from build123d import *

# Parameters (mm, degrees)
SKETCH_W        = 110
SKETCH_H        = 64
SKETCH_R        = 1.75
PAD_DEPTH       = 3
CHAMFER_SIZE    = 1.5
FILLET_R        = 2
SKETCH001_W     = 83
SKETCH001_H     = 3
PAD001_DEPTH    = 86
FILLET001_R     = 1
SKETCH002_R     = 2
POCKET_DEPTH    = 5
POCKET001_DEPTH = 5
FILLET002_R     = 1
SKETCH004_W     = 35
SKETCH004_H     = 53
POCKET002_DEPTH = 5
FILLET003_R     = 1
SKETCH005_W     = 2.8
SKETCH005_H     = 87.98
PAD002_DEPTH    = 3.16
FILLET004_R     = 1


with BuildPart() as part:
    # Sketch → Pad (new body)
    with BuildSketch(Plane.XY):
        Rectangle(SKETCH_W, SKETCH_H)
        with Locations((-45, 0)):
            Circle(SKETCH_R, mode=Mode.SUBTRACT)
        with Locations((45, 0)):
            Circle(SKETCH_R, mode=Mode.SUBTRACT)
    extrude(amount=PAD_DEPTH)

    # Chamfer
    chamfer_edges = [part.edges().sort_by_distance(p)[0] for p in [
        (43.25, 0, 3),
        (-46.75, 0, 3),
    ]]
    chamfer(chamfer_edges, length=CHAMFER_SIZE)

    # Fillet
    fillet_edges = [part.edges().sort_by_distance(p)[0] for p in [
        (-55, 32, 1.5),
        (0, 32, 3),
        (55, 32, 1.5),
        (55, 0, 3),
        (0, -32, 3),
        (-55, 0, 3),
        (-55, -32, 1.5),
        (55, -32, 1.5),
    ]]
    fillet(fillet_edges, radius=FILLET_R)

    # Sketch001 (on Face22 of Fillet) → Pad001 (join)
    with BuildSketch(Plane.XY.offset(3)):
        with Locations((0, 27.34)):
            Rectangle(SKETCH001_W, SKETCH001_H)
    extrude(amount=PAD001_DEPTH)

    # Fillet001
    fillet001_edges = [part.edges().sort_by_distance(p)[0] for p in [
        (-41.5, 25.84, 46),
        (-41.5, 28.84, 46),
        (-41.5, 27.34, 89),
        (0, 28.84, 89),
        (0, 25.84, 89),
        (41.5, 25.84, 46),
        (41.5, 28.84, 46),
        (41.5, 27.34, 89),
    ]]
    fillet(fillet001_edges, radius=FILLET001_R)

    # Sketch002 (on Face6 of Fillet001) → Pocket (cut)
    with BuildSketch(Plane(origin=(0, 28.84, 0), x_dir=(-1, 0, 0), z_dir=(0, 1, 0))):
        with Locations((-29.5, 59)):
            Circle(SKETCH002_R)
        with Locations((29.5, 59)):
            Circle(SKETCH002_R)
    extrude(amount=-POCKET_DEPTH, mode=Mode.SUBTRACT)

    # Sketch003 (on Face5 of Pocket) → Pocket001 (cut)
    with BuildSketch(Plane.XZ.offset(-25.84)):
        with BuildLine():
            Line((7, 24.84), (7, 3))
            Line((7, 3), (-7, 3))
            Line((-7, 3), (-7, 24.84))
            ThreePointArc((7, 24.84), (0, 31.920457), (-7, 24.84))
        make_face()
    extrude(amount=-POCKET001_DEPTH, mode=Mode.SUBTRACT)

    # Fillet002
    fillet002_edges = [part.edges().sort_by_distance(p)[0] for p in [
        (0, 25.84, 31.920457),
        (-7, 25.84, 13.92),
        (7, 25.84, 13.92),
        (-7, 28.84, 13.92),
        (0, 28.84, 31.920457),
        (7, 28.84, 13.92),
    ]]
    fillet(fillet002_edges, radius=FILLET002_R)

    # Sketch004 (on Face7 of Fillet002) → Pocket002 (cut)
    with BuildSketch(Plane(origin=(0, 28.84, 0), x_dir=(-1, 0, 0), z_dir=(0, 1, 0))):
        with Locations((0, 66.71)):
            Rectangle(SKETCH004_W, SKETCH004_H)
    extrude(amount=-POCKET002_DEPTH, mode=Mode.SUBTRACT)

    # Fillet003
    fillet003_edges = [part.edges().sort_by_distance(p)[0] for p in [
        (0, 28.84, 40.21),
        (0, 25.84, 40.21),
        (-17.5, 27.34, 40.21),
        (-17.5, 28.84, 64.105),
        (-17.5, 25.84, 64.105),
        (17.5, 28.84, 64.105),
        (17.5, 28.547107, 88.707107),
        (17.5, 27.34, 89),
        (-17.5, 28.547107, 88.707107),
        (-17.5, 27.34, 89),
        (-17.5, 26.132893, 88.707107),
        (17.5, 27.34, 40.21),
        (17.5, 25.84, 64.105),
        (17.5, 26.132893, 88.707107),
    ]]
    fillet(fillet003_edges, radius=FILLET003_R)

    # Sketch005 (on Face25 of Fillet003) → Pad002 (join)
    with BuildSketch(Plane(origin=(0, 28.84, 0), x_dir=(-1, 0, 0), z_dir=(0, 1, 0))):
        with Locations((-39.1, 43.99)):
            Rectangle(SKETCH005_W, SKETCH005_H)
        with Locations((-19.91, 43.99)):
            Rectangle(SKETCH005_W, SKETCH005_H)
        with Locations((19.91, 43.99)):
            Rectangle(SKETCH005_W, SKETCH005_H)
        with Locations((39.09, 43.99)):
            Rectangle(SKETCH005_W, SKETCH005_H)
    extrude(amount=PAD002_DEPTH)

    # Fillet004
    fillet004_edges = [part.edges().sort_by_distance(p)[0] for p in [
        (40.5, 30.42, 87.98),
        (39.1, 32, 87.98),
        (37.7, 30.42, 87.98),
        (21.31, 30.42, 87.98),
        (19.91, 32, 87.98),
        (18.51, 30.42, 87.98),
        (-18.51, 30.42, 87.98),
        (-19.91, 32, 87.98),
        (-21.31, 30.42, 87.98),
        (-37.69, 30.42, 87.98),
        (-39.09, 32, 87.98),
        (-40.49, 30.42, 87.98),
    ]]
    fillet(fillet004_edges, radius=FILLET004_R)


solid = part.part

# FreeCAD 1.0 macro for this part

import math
import FreeCAD as App
import Part
import Sketcher
from FreeCAD import Vector


def edges_at(feature, points):
    """Names of the edges that pass closest to the given points."""
    edges = feature.Shape.Edges
    near = lambda p: min(range(len(edges)), key=lambda i: edges[i].distToShape(Part.Vertex(*p))[0])
    return sorted({f"Edge{near(p) + 1}" for p in points})


def add_polygon(sketch, points):
    """Adds a closed chain of lines whose ends are joined by coincident constraints."""
    first, n = sketch.GeometryCount, len(points)
    for a, b in zip(points, points[1:] + points[:1]):
        sketch.addGeometry(Part.LineSegment(App.Vector(*a, 0), App.Vector(*b, 0)), False)
    for i in range(n):
        sketch.addConstraint(Sketcher.Constraint("Coincident", first + i, 2, first + (i + 1) % n, 1))

doc = App.newDocument("Part")
body = doc.addObject("PartDesign::Body", "Body")

# Sketch on XY plane
sketch1 = body.newObject("Sketcher::SketchObject", "Sketch")
sketch1.AttachmentSupport = (doc.getObject("XY_Plane"), [""])
sketch1.MapMode = "FlatFace"
add_polygon(sketch1, [(-55, 32), (-55, -32), (55, -32), (55, 32)])  # lines 0-3
sketch1.addGeometry(Part.Circle(Vector(-45, 0, 0), Vector(0, 0, 1), 1.75), False)  # 4
sketch1.addGeometry(Part.Circle(Vector(45, 0, 0), Vector(0, 0, 1), 1.75), False)  # 5
sketch1.addConstraint([
    Sketcher.Constraint("Vertical", 0),
    Sketcher.Constraint("Horizontal", 1),
    Sketcher.Constraint("Vertical", 2),
    Sketcher.Constraint("Horizontal", 3),
    Sketcher.Constraint("Equal", 4, 5),
    Sketcher.Constraint("Symmetric", 4, 3, 5, 3, -1, 1),
    Sketcher.Constraint("Symmetric", 0, 2, 2, 2, -1, 1),
    Sketcher.Constraint("PointOnObject", 4, 3, -1),
    Sketcher.Constraint("Diameter", 4, 3.5),
    Sketcher.Constraint("DistanceX", 1, 1, 1, 2, 110.0),
    Sketcher.Constraint("DistanceY", 0, 2, 0, 1, 64.0),
    Sketcher.Constraint("DistanceX", 4, 3, -1, 1, 45.0),
])
pad1 = body.newObject("PartDesign::Pad", "Pad")
pad1.Profile = sketch1
pad1.Length = 3
doc.recompute()

chamfer = body.newObject("PartDesign::Chamfer", "Chamfer")
chamfer.Base = (pad1, edges_at(pad1, [(43.25, 0, 3), (-46.75, 0, 3)]))
chamfer.Size = 1.5
doc.recompute()

fillet = body.newObject("PartDesign::Fillet", "Fillet")
fillet.Base = (chamfer, edges_at(chamfer, [
    (-55, 32, 1.5),
    (0, 32, 3),
    (55, 32, 1.5),
    (55, 0, 3),
    (0, -32, 3),
    (-55, 0, 3),
    (-55, -32, 1.5),
    (55, -32, 1.5),
]))
fillet.Radius = 2

# Sketch on XY plane
sketch2 = body.newObject("Sketcher::SketchObject", "Sketch001")
sketch2.AttachmentSupport = (doc.getObject("XY_Plane"), [""])
sketch2.MapMode = "FlatFace"
sketch2.AttachmentOffset = App.Placement(Vector(0, 0, 3), App.Rotation())
add_polygon(sketch2, [(-41.5, 28.84), (-41.5, 25.84), (41.5, 25.84), (41.5, 28.84)])  # lines 0-3
sketch2.addConstraint([
    Sketcher.Constraint("Vertical", 0),
    Sketcher.Constraint("Horizontal", 1),
    Sketcher.Constraint("Vertical", 2),
    Sketcher.Constraint("Horizontal", 3),
    Sketcher.Constraint("DistanceX", 1, 1, 1, 2, 83.0),
    Sketcher.Constraint("DistanceY", 0, 2, 0, 1, 3.0),
    Sketcher.Constraint("DistanceX", 0, 2, -1, 1, 41.5),
    Sketcher.Constraint("DistanceY", -1, 1, 0, 2, 25.84),
])
pad2 = body.newObject("PartDesign::Pad", "Pad001")
pad2.Profile = sketch2
pad2.Length = 86
doc.recompute()

fillet2 = body.newObject("PartDesign::Fillet", "Fillet001")
fillet2.Base = (pad2, edges_at(pad2, [
    (-41.5, 25.84, 46),
    (-41.5, 28.84, 46),
    (-41.5, 27.34, 89),
    (0, 28.84, 89),
    (0, 25.84, 89),
    (41.5, 25.84, 46),
    (41.5, 28.84, 46),
    (41.5, 27.34, 89),
]))
fillet2.Radius = 1

# Sketch on XZ plane
sketch3 = body.newObject("Sketcher::SketchObject", "Sketch002")
sketch3.AttachmentSupport = (doc.getObject("XZ_Plane"), [""])
sketch3.MapMode = "FlatFace"
sketch3.AttachmentOffset = App.Placement(Vector(0, 0, -28.84), App.Rotation())
sketch3.addGeometry([
    Part.Circle(Vector(29.5, 59, 0), Vector(0, 0, 1), 2),
    Part.Circle(Vector(-29.5, 59, 0), Vector(0, 0, 1), 2),
], False)
sketch3.addConstraint([
    Sketcher.Constraint("Equal", 0, 1),
    Sketcher.Constraint("Symmetric", 0, 3, 1, 3, -2),
    Sketcher.Constraint("Diameter", 0, 4.0),
    Sketcher.Constraint("DistanceY", -1, 1, 0, 3, 59.0),
    Sketcher.Constraint("DistanceX", 1, 3, 0, 3, 59.0),
])
pocket1 = body.newObject("PartDesign::Pocket", "Pocket")
pocket1.Profile = sketch3
pocket1.Length = 5
pocket1.Reversed = True

# Sketch on XZ plane
sketch4 = body.newObject("Sketcher::SketchObject", "Sketch003")
sketch4.AttachmentSupport = (doc.getObject("XZ_Plane"), [""])
sketch4.MapMode = "FlatFace"
sketch4.AttachmentOffset = App.Placement(Vector(0, 0, -25.84), App.Rotation())
sketch4.addGeometry([
    Part.LineSegment(Vector(7, 3, 0), Vector(7, 24.84, 0)),
    Part.ArcOfCircle(Part.Circle(Vector(0, 24.92, 0), Vector(0, 0, 1), 7.000457), math.radians(-0.654779), math.radians(180.654779)),
    Part.LineSegment(Vector(-7, 24.84, 0), Vector(-7, 3, 0)),
    Part.LineSegment(Vector(-7, 3, 0), Vector(7, 3, 0)),
], False)
sketch4.addConstraint([
    Sketcher.Constraint("Coincident", 0, 2, 1, 1),
    Sketcher.Constraint("Coincident", 1, 2, 2, 1),
    Sketcher.Constraint("Coincident", 2, 2, 3, 1),
    Sketcher.Constraint("Coincident", 3, 2, 0, 1),
    Sketcher.Constraint("Vertical", 0),
    Sketcher.Constraint("Vertical", 2),
    Sketcher.Constraint("Horizontal", 3),
    Sketcher.Constraint("Symmetric", 0, 2, 1, 2, -2),
    Sketcher.Constraint("DistanceX", 3, 1, 3, 2, 14.0),
    Sketcher.Constraint("DistanceY", -1, 1, 2, 2, 3.0),
    Sketcher.Constraint("DistanceY", 0, 1, 0, 2, 21.84),
    Sketcher.Constraint("DistanceY", -1, 1, 1, 3, 24.92),
])
pocket2 = body.newObject("PartDesign::Pocket", "Pocket001")
pocket2.Profile = sketch4
pocket2.Length = 5
doc.recompute()

fillet3 = body.newObject("PartDesign::Fillet", "Fillet002")
fillet3.Base = (pocket2, edges_at(pocket2, [
    (0, 25.84, 31.92),
    (-7, 25.84, 13.92),
    (7, 25.84, 13.92),
    (-7, 28.84, 13.92),
    (0, 28.84, 31.92),
    (7, 28.84, 13.92),
]))
fillet3.Radius = 1

# Sketch on XZ plane
sketch5 = body.newObject("Sketcher::SketchObject", "Sketch004")
sketch5.AttachmentSupport = (doc.getObject("XZ_Plane"), [""])
sketch5.MapMode = "FlatFace"
sketch5.AttachmentOffset = App.Placement(Vector(0, 0, -28.84), App.Rotation())
add_polygon(sketch5, [(17.5, 93.21), (17.5, 40.21), (-17.5, 40.21), (-17.5, 93.21)])  # lines 0-3
sketch5.addConstraint([
    Sketcher.Constraint("Vertical", 0),
    Sketcher.Constraint("Horizontal", 1),
    Sketcher.Constraint("Vertical", 2),
    Sketcher.Constraint("Horizontal", 3),
    Sketcher.Constraint("DistanceX", 1, 2, 1, 1, 35.0),
    Sketcher.Constraint("DistanceY", 0, 2, 0, 1, 53.0),
    Sketcher.Constraint("DistanceX", -1, 1, 0, 2, 17.5),
    Sketcher.Constraint("DistanceY", -1, 1, 0, 2, 40.21),
])
pocket3 = body.newObject("PartDesign::Pocket", "Pocket002")
pocket3.Profile = sketch5
pocket3.Length = 5
pocket3.Reversed = True
doc.recompute()

fillet4 = body.newObject("PartDesign::Fillet", "Fillet003")
fillet4.Base = (pocket3, edges_at(pocket3, [
    (0, 28.84, 40.21),
    (0, 25.84, 40.21),
    (-17.5, 27.34, 40.21),
    (-17.5, 28.84, 64.105),
    (-17.5, 25.84, 64.105),
    (17.5, 28.84, 64.105),
    (17.5, 28.547, 88.707),
    (17.5, 27.34, 89),
    (-17.5, 28.547, 88.707),
    (-17.5, 27.34, 89),
    (-17.5, 26.133, 88.707),
    (17.5, 27.34, 40.21),
    (17.5, 25.84, 64.105),
    (17.5, 26.133, 88.707),
]))
fillet4.Radius = 1

# Sketch on XZ plane
sketch6 = body.newObject("Sketcher::SketchObject", "Sketch005")
sketch6.AttachmentSupport = (doc.getObject("XZ_Plane"), [""])
sketch6.MapMode = "FlatFace"
sketch6.AttachmentOffset = App.Placement(Vector(0, 0, -28.84), App.Rotation())
add_polygon(sketch6, [(40.5, 87.98), (40.5, 0), (37.7, 0), (37.7, 87.98)])  # lines 0-3
add_polygon(sketch6, [(21.31, 87.98), (21.31, 0), (18.51, 0), (18.51, 87.98)])  # lines 4-7
add_polygon(sketch6, [(-18.51, 87.98), (-18.51, 0), (-21.31, 0), (-21.31, 87.98)])  # lines 8-11
add_polygon(sketch6, [(-37.69, 87.98), (-37.69, 0), (-40.49, 0), (-40.49, 87.98)])  # lines 12-15
sketch6.addConstraint([
    Sketcher.Constraint("Vertical", 0),
    Sketcher.Constraint("Horizontal", 1),
    Sketcher.Constraint("Vertical", 2),
    Sketcher.Constraint("Horizontal", 3),
    Sketcher.Constraint("Vertical", 4),
    Sketcher.Constraint("Horizontal", 5),
    Sketcher.Constraint("Vertical", 6),
    Sketcher.Constraint("Horizontal", 7),
    Sketcher.Constraint("Vertical", 8),
    Sketcher.Constraint("Horizontal", 9),
    Sketcher.Constraint("Vertical", 10),
    Sketcher.Constraint("Horizontal", 11),
    Sketcher.Constraint("Vertical", 12),
    Sketcher.Constraint("Horizontal", 13),
    Sketcher.Constraint("Vertical", 14),
    Sketcher.Constraint("Horizontal", 15),
    Sketcher.Constraint("Symmetric", 5, 2, 8, 2, -1, 1),
    Sketcher.Constraint("Symmetric", 4, 2, 9, 2, -2),
    Sketcher.Constraint("PointOnObject", 0, 2, -1),
    Sketcher.Constraint("PointOnObject", 12, 2, -1),
    Sketcher.Constraint("Horizontal", 3, 2, 6, 2),
    Sketcher.Constraint("Horizontal", 7, 2, 10, 2),
    Sketcher.Constraint("Horizontal", 11, 2, 14, 2),
    Sketcher.Constraint("Equal", 3, 5),
    Sketcher.Constraint("Equal", 11, 13),
    Sketcher.Constraint("DistanceX", 1, 2, 1, 1, 2.8),
    Sketcher.Constraint("DistanceX", 12, 2, 4, 2, 59.0),
    Sketcher.Constraint("DistanceY", 0, 2, 0, 1, 87.98),
    Sketcher.Constraint("DistanceX", -1, 1, 0, 2, 40.5),
    Sketcher.Constraint("DistanceX", -1, 1, 4, 2, 21.31),
])
pad3 = body.newObject("PartDesign::Pad", "Pad002")
pad3.Profile = sketch6
pad3.Length = 3.16
pad3.Reversed = True
doc.recompute()

fillet5 = body.newObject("PartDesign::Fillet", "Fillet004")
fillet5.Base = (pad3, edges_at(pad3, [
    (40.5, 30.42, 87.98),
    (39.1, 32, 87.98),
    (37.7, 30.42, 87.98),
    (21.31, 30.42, 87.98),
    (19.91, 32, 87.98),
    (18.51, 30.42, 87.98),
    (-18.51, 30.42, 87.98),
    (-19.91, 32, 87.98),
    (-21.31, 30.42, 87.98),
    (-37.69, 30.42, 87.98),
    (-39.09, 32, 87.98),
    (-40.49, 30.42, 87.98),
]))
fillet5.Radius = 1

doc.recompute()
